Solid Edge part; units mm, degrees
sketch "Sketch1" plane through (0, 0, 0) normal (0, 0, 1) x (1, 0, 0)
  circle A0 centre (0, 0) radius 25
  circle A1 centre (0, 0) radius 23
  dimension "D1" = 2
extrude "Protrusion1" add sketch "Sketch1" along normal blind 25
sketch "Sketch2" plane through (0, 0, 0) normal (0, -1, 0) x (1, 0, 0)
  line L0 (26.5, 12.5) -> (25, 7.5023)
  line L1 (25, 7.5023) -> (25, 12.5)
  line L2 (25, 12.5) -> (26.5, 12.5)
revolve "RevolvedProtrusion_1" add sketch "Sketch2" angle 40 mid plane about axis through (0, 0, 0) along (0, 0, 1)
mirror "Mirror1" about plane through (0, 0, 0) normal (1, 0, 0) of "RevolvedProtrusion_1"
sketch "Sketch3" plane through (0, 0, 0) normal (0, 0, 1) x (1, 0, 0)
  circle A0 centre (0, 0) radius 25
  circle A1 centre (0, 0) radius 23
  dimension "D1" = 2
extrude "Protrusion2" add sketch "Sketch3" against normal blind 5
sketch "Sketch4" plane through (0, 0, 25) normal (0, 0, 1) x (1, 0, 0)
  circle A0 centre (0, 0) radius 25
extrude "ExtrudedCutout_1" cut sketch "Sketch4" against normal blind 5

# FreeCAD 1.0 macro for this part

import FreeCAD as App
import Part
import Sketcher
Q = App.Units.Quantity


def add_polygon(sketch, points):
    """Adds a closed chain of lines whose ends are joined by coincident constraints."""
    first, n = sketch.GeometryCount, len(points)
    for a, b in zip(points, points[1:] + points[:1]):
        sketch.addGeometry(Part.LineSegment(App.Vector(*a, 0), App.Vector(*b, 0)), False)
    for i in range(n):
        sketch.addConstraint(Sketcher.Constraint("Coincident", first + i, 2, first + (i + 1) % n, 1))

doc = App.newDocument("Part")
body = doc.addObject("PartDesign::Body", "Body")

# Sketch on XY plane
sketch1 = body.newObject("Sketcher::SketchObject", "Sketch")
sketch1.AttachmentSupport = (doc.getObject("XY_Plane"), [""])
sketch1.MapMode = "FlatFace"
sketch1.addGeometry(Part.Circle(App.Vector(0, 0, 0), App.Vector(0, 0, 1), 25), False)
sketch1.addGeometry(Part.Circle(App.Vector(0, 0, 0), App.Vector(0, 0, 1), 23), False)
sketch1.addConstraint(Sketcher.Constraint("Coincident", 0, 3, -1, 1))
sketch1.addConstraint(Sketcher.Constraint("Coincident", 1, 3, -1, 1))
sketch1.addConstraint(Sketcher.Constraint("Diameter", 0, Q("50 mm")))
sketch1.addConstraint(Sketcher.Constraint("Diameter", 1, Q("46 mm")))
pad1 = body.newObject("PartDesign::Pad", "Pad")
pad1.Profile = sketch1
pad1.Length = 25

# Sketch on XZ plane
sketch2 = body.newObject("Sketcher::SketchObject", "Sketch001")
sketch2.AttachmentSupport = (doc.getObject("XZ_Plane"), [""])
sketch2.MapMode = "FlatFace"
add_polygon(sketch2, [(25, 7.5023), (26.5, 12.5), (25, 12.5)])  # lines 0-2
sketch2.addConstraint(Sketcher.Constraint("Horizontal", 1))
sketch2.addConstraint(Sketcher.Constraint("Vertical", 2))
sketch2.addConstraint(Sketcher.Constraint("DistanceX", 1, 2, 1, 1, Q("1.5 mm")))
sketch2.addConstraint(Sketcher.Constraint("DistanceX", -1, 1, 1, 2, Q("25 mm")))
sketch2.addConstraint(Sketcher.Constraint("DistanceY", -1, 1, 0, 2, Q("12.5 mm")))
sketch2.addConstraint(Sketcher.Constraint("Distance", 0, Q("5.218 mm")))
revolution = body.newObject("PartDesign::Revolution", "Revolution")
revolution.Profile = sketch2
revolution.ReferenceAxis = (sketch2, ["V_Axis"])
revolution.Angle = 40
revolution.Midplane = True
doc.recompute()

mirrored = body.newObject("PartDesign::Mirrored", "Mirrored")
mirrored.Originals = [revolution]
mirrored.MirrorPlane = (doc.getObject("YZ_Plane"), [""])
body.Tip = mirrored

# Sketch on XY plane
sketch3 = body.newObject("Sketcher::SketchObject", "Sketch002")
sketch3.AttachmentSupport = (doc.getObject("XY_Plane"), [""])
sketch3.MapMode = "FlatFace"
sketch3.addGeometry(Part.Circle(App.Vector(0, 0, 0), App.Vector(0, 0, 1), 25), False)
sketch3.addGeometry(Part.Circle(App.Vector(0, 0, 0), App.Vector(0, 0, 1), 23), False)
sketch3.addConstraint(Sketcher.Constraint("Coincident", 0, 3, -1, 1))
sketch3.addConstraint(Sketcher.Constraint("Coincident", 1, 3, -1, 1))
sketch3.addConstraint(Sketcher.Constraint("Diameter", 0, Q("50 mm")))
sketch3.addConstraint(Sketcher.Constraint("Diameter", 1, Q("46 mm")))
pad2 = body.newObject("PartDesign::Pad", "Pad001")
pad2.Profile = sketch3
pad2.Length = 5
pad2.Reversed = True

# Sketch on XY plane
sketch4 = body.newObject("Sketcher::SketchObject", "Sketch003")
sketch4.AttachmentSupport = (doc.getObject("XY_Plane"), [""])
sketch4.MapMode = "FlatFace"
sketch4.AttachmentOffset = App.Placement(App.Vector(0, 0, 25), App.Rotation())
sketch4.addGeometry(Part.Circle(App.Vector(0, 0, 0), App.Vector(0, 0, 1), 25), False)
sketch4.addConstraint(Sketcher.Constraint("Coincident", 0, 3, -1, 1))
sketch4.addConstraint(Sketcher.Constraint("Diameter", 0, Q("50 mm")))
pocket1 = body.newObject("PartDesign::Pocket", "Pocket")
pocket1.Profile = sketch4
pocket1.Length = 5

doc.recompute()
